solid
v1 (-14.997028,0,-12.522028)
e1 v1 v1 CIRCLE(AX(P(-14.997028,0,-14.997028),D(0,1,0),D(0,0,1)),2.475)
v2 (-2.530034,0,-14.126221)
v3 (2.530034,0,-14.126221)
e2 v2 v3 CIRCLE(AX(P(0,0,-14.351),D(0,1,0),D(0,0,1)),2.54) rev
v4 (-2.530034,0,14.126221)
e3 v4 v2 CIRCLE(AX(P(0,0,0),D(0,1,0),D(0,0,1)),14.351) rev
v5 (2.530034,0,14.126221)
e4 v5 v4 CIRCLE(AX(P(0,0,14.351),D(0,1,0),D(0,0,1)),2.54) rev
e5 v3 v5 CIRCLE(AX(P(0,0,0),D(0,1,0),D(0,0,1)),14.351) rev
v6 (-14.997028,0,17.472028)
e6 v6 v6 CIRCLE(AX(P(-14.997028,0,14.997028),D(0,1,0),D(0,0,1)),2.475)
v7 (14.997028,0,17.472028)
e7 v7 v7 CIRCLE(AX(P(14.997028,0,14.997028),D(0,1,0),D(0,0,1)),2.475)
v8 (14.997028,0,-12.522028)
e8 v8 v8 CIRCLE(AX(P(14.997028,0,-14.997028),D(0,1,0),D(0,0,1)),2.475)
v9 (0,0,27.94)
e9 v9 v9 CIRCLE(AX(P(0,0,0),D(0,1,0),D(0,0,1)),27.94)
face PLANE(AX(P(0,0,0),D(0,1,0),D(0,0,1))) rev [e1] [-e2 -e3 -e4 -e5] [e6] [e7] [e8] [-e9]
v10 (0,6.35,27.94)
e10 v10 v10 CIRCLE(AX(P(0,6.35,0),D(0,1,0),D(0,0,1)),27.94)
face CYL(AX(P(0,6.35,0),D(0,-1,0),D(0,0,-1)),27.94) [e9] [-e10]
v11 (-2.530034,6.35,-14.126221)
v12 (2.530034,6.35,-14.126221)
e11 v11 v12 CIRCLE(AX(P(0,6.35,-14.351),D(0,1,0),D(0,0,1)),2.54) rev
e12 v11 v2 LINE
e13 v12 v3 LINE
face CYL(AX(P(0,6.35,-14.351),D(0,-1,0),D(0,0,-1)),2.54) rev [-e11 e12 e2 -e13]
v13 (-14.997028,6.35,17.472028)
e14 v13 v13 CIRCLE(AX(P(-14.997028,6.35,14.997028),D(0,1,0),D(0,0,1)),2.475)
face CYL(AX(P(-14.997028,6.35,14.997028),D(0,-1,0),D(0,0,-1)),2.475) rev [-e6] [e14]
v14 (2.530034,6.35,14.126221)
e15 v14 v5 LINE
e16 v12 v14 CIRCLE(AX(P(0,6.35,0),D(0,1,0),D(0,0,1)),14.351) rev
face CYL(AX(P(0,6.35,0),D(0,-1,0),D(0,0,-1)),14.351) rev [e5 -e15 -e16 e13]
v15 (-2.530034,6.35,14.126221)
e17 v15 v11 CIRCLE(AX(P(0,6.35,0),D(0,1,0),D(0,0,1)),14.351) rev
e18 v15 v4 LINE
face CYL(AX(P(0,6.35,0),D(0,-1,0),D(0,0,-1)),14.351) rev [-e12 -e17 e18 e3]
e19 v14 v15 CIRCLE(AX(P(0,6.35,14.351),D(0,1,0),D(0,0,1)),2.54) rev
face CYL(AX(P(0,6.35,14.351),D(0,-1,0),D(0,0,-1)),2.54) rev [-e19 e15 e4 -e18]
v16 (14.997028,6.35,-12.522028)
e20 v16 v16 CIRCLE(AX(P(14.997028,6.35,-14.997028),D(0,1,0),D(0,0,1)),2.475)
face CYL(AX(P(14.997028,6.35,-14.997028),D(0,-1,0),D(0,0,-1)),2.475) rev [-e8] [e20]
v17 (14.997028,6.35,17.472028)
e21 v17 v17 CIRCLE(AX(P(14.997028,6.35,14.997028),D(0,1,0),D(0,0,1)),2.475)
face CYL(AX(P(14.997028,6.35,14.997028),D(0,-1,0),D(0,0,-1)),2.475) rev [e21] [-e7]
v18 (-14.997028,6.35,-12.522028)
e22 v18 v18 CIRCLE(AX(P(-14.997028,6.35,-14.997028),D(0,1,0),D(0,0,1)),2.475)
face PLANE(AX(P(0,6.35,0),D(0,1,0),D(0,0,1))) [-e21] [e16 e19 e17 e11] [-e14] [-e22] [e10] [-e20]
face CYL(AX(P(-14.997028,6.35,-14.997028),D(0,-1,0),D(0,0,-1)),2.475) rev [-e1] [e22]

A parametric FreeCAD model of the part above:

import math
import FreeCAD as App
import Part
import Sketcher

V = App.Vector
Q = App.Units.Quantity

doc = App.newDocument("Part")
body = doc.addObject("PartDesign::Body", "Body")

sketch1 = doc.addObject("Sketcher::SketchObject", "Sketch")
body.addObject(sketch1)
sketch1.AttachmentSupport = (doc.XZ_Plane, [""])
sketch1.MapMode = "FlatFace"
sketch1.addGeometry([
    Part.Circle(V(0, 0, 0), V(0, 0, 1), 27.94),
    Part.Circle(V(-14.997028, -14.997028, 0), V(0, 0, 1), 2.475),
    Part.Circle(V(-14.997028, 14.997028, 0), V(0, 0, 1), 2.475),
    Part.ArcOfCircle(Part.Circle(V(0, 0, 0), V(0, 0, 1), 14.351), math.radians(-79.845871), math.radians(79.845871)),
    Part.ArcOfCircle(Part.Circle(V(0, 14.351, 0), V(0, 0, 1), 2.54), math.radians(-5.077065), math.radians(185.077065)),
    Part.ArcOfCircle(Part.Circle(V(0, 0, 0), V(0, 0, 1), 14.351), math.radians(100.154129), math.radians(259.845871)),
    Part.ArcOfCircle(Part.Circle(V(0, -14.351, 0), V(0, 0, 1), 2.54), math.radians(174.922935), math.radians(365.077065)),
    Part.Circle(V(14.997028, -14.997028, 0), V(0, 0, 1), 2.475),
    Part.Circle(V(14.997028, 14.997028, 0), V(0, 0, 1), 2.475),
], False)
sketch1.addConstraint([
    Sketcher.Constraint("Coincident", 3, 2, 4, 1),
    Sketcher.Constraint("Coincident", 4, 2, 5, 1),
    Sketcher.Constraint("Coincident", 5, 2, 6, 1),
    Sketcher.Constraint("Coincident", 6, 2, 3, 1),
    Sketcher.Constraint("Coincident", 0, 3, -1, 1),
    Sketcher.Constraint("Coincident", 3, 3, -1, 1),
    Sketcher.Constraint("Coincident", 5, 3, -1, 1),
    Sketcher.Constraint("Equal", 1, 2),
    Sketcher.Constraint("Equal", 3, 5),
    Sketcher.Constraint("Equal", 4, 6),
    Sketcher.Constraint("Equal", 2, 7),
    Sketcher.Constraint("Equal", 7, 8),
    Sketcher.Constraint("Symmetric", 4, 3, 6, 3, -1, 1),
    Sketcher.Constraint("Symmetric", 2, 3, 7, 3, -1, 1),
    Sketcher.Constraint("Symmetric", 1, 3, 8, 3, -1, 1),
    Sketcher.Constraint("Symmetric", 1, 3, 7, 3, -2),
    Sketcher.Constraint("PointOnObject", 4, 3, -2),
    Sketcher.Constraint("Diameter", 0, Q("2.2 in")),
    Sketcher.Constraint("Radius", 4, Q("0.1 in")),
    Sketcher.Constraint("Radius", 3, Q("0.565 in")),
    Sketcher.Constraint("Diameter", 1, 4.95),
    Sketcher.Constraint("DistanceY", 6, 3, 4, 3, Q("1.13 in")),
    Sketcher.Constraint("DistanceX", 1, 3, -1, 1, 14.997028),
    Sketcher.Constraint("DistanceY", 1, 3, -1, 1, 14.997028),
])
pad1 = doc.addObject("PartDesign::Pad", "Pad")
body.addObject(pad1)
pad1.Profile = sketch1
pad1.Length = Q("0.25 in")
pad1.Reversed = True

doc.recompute()
